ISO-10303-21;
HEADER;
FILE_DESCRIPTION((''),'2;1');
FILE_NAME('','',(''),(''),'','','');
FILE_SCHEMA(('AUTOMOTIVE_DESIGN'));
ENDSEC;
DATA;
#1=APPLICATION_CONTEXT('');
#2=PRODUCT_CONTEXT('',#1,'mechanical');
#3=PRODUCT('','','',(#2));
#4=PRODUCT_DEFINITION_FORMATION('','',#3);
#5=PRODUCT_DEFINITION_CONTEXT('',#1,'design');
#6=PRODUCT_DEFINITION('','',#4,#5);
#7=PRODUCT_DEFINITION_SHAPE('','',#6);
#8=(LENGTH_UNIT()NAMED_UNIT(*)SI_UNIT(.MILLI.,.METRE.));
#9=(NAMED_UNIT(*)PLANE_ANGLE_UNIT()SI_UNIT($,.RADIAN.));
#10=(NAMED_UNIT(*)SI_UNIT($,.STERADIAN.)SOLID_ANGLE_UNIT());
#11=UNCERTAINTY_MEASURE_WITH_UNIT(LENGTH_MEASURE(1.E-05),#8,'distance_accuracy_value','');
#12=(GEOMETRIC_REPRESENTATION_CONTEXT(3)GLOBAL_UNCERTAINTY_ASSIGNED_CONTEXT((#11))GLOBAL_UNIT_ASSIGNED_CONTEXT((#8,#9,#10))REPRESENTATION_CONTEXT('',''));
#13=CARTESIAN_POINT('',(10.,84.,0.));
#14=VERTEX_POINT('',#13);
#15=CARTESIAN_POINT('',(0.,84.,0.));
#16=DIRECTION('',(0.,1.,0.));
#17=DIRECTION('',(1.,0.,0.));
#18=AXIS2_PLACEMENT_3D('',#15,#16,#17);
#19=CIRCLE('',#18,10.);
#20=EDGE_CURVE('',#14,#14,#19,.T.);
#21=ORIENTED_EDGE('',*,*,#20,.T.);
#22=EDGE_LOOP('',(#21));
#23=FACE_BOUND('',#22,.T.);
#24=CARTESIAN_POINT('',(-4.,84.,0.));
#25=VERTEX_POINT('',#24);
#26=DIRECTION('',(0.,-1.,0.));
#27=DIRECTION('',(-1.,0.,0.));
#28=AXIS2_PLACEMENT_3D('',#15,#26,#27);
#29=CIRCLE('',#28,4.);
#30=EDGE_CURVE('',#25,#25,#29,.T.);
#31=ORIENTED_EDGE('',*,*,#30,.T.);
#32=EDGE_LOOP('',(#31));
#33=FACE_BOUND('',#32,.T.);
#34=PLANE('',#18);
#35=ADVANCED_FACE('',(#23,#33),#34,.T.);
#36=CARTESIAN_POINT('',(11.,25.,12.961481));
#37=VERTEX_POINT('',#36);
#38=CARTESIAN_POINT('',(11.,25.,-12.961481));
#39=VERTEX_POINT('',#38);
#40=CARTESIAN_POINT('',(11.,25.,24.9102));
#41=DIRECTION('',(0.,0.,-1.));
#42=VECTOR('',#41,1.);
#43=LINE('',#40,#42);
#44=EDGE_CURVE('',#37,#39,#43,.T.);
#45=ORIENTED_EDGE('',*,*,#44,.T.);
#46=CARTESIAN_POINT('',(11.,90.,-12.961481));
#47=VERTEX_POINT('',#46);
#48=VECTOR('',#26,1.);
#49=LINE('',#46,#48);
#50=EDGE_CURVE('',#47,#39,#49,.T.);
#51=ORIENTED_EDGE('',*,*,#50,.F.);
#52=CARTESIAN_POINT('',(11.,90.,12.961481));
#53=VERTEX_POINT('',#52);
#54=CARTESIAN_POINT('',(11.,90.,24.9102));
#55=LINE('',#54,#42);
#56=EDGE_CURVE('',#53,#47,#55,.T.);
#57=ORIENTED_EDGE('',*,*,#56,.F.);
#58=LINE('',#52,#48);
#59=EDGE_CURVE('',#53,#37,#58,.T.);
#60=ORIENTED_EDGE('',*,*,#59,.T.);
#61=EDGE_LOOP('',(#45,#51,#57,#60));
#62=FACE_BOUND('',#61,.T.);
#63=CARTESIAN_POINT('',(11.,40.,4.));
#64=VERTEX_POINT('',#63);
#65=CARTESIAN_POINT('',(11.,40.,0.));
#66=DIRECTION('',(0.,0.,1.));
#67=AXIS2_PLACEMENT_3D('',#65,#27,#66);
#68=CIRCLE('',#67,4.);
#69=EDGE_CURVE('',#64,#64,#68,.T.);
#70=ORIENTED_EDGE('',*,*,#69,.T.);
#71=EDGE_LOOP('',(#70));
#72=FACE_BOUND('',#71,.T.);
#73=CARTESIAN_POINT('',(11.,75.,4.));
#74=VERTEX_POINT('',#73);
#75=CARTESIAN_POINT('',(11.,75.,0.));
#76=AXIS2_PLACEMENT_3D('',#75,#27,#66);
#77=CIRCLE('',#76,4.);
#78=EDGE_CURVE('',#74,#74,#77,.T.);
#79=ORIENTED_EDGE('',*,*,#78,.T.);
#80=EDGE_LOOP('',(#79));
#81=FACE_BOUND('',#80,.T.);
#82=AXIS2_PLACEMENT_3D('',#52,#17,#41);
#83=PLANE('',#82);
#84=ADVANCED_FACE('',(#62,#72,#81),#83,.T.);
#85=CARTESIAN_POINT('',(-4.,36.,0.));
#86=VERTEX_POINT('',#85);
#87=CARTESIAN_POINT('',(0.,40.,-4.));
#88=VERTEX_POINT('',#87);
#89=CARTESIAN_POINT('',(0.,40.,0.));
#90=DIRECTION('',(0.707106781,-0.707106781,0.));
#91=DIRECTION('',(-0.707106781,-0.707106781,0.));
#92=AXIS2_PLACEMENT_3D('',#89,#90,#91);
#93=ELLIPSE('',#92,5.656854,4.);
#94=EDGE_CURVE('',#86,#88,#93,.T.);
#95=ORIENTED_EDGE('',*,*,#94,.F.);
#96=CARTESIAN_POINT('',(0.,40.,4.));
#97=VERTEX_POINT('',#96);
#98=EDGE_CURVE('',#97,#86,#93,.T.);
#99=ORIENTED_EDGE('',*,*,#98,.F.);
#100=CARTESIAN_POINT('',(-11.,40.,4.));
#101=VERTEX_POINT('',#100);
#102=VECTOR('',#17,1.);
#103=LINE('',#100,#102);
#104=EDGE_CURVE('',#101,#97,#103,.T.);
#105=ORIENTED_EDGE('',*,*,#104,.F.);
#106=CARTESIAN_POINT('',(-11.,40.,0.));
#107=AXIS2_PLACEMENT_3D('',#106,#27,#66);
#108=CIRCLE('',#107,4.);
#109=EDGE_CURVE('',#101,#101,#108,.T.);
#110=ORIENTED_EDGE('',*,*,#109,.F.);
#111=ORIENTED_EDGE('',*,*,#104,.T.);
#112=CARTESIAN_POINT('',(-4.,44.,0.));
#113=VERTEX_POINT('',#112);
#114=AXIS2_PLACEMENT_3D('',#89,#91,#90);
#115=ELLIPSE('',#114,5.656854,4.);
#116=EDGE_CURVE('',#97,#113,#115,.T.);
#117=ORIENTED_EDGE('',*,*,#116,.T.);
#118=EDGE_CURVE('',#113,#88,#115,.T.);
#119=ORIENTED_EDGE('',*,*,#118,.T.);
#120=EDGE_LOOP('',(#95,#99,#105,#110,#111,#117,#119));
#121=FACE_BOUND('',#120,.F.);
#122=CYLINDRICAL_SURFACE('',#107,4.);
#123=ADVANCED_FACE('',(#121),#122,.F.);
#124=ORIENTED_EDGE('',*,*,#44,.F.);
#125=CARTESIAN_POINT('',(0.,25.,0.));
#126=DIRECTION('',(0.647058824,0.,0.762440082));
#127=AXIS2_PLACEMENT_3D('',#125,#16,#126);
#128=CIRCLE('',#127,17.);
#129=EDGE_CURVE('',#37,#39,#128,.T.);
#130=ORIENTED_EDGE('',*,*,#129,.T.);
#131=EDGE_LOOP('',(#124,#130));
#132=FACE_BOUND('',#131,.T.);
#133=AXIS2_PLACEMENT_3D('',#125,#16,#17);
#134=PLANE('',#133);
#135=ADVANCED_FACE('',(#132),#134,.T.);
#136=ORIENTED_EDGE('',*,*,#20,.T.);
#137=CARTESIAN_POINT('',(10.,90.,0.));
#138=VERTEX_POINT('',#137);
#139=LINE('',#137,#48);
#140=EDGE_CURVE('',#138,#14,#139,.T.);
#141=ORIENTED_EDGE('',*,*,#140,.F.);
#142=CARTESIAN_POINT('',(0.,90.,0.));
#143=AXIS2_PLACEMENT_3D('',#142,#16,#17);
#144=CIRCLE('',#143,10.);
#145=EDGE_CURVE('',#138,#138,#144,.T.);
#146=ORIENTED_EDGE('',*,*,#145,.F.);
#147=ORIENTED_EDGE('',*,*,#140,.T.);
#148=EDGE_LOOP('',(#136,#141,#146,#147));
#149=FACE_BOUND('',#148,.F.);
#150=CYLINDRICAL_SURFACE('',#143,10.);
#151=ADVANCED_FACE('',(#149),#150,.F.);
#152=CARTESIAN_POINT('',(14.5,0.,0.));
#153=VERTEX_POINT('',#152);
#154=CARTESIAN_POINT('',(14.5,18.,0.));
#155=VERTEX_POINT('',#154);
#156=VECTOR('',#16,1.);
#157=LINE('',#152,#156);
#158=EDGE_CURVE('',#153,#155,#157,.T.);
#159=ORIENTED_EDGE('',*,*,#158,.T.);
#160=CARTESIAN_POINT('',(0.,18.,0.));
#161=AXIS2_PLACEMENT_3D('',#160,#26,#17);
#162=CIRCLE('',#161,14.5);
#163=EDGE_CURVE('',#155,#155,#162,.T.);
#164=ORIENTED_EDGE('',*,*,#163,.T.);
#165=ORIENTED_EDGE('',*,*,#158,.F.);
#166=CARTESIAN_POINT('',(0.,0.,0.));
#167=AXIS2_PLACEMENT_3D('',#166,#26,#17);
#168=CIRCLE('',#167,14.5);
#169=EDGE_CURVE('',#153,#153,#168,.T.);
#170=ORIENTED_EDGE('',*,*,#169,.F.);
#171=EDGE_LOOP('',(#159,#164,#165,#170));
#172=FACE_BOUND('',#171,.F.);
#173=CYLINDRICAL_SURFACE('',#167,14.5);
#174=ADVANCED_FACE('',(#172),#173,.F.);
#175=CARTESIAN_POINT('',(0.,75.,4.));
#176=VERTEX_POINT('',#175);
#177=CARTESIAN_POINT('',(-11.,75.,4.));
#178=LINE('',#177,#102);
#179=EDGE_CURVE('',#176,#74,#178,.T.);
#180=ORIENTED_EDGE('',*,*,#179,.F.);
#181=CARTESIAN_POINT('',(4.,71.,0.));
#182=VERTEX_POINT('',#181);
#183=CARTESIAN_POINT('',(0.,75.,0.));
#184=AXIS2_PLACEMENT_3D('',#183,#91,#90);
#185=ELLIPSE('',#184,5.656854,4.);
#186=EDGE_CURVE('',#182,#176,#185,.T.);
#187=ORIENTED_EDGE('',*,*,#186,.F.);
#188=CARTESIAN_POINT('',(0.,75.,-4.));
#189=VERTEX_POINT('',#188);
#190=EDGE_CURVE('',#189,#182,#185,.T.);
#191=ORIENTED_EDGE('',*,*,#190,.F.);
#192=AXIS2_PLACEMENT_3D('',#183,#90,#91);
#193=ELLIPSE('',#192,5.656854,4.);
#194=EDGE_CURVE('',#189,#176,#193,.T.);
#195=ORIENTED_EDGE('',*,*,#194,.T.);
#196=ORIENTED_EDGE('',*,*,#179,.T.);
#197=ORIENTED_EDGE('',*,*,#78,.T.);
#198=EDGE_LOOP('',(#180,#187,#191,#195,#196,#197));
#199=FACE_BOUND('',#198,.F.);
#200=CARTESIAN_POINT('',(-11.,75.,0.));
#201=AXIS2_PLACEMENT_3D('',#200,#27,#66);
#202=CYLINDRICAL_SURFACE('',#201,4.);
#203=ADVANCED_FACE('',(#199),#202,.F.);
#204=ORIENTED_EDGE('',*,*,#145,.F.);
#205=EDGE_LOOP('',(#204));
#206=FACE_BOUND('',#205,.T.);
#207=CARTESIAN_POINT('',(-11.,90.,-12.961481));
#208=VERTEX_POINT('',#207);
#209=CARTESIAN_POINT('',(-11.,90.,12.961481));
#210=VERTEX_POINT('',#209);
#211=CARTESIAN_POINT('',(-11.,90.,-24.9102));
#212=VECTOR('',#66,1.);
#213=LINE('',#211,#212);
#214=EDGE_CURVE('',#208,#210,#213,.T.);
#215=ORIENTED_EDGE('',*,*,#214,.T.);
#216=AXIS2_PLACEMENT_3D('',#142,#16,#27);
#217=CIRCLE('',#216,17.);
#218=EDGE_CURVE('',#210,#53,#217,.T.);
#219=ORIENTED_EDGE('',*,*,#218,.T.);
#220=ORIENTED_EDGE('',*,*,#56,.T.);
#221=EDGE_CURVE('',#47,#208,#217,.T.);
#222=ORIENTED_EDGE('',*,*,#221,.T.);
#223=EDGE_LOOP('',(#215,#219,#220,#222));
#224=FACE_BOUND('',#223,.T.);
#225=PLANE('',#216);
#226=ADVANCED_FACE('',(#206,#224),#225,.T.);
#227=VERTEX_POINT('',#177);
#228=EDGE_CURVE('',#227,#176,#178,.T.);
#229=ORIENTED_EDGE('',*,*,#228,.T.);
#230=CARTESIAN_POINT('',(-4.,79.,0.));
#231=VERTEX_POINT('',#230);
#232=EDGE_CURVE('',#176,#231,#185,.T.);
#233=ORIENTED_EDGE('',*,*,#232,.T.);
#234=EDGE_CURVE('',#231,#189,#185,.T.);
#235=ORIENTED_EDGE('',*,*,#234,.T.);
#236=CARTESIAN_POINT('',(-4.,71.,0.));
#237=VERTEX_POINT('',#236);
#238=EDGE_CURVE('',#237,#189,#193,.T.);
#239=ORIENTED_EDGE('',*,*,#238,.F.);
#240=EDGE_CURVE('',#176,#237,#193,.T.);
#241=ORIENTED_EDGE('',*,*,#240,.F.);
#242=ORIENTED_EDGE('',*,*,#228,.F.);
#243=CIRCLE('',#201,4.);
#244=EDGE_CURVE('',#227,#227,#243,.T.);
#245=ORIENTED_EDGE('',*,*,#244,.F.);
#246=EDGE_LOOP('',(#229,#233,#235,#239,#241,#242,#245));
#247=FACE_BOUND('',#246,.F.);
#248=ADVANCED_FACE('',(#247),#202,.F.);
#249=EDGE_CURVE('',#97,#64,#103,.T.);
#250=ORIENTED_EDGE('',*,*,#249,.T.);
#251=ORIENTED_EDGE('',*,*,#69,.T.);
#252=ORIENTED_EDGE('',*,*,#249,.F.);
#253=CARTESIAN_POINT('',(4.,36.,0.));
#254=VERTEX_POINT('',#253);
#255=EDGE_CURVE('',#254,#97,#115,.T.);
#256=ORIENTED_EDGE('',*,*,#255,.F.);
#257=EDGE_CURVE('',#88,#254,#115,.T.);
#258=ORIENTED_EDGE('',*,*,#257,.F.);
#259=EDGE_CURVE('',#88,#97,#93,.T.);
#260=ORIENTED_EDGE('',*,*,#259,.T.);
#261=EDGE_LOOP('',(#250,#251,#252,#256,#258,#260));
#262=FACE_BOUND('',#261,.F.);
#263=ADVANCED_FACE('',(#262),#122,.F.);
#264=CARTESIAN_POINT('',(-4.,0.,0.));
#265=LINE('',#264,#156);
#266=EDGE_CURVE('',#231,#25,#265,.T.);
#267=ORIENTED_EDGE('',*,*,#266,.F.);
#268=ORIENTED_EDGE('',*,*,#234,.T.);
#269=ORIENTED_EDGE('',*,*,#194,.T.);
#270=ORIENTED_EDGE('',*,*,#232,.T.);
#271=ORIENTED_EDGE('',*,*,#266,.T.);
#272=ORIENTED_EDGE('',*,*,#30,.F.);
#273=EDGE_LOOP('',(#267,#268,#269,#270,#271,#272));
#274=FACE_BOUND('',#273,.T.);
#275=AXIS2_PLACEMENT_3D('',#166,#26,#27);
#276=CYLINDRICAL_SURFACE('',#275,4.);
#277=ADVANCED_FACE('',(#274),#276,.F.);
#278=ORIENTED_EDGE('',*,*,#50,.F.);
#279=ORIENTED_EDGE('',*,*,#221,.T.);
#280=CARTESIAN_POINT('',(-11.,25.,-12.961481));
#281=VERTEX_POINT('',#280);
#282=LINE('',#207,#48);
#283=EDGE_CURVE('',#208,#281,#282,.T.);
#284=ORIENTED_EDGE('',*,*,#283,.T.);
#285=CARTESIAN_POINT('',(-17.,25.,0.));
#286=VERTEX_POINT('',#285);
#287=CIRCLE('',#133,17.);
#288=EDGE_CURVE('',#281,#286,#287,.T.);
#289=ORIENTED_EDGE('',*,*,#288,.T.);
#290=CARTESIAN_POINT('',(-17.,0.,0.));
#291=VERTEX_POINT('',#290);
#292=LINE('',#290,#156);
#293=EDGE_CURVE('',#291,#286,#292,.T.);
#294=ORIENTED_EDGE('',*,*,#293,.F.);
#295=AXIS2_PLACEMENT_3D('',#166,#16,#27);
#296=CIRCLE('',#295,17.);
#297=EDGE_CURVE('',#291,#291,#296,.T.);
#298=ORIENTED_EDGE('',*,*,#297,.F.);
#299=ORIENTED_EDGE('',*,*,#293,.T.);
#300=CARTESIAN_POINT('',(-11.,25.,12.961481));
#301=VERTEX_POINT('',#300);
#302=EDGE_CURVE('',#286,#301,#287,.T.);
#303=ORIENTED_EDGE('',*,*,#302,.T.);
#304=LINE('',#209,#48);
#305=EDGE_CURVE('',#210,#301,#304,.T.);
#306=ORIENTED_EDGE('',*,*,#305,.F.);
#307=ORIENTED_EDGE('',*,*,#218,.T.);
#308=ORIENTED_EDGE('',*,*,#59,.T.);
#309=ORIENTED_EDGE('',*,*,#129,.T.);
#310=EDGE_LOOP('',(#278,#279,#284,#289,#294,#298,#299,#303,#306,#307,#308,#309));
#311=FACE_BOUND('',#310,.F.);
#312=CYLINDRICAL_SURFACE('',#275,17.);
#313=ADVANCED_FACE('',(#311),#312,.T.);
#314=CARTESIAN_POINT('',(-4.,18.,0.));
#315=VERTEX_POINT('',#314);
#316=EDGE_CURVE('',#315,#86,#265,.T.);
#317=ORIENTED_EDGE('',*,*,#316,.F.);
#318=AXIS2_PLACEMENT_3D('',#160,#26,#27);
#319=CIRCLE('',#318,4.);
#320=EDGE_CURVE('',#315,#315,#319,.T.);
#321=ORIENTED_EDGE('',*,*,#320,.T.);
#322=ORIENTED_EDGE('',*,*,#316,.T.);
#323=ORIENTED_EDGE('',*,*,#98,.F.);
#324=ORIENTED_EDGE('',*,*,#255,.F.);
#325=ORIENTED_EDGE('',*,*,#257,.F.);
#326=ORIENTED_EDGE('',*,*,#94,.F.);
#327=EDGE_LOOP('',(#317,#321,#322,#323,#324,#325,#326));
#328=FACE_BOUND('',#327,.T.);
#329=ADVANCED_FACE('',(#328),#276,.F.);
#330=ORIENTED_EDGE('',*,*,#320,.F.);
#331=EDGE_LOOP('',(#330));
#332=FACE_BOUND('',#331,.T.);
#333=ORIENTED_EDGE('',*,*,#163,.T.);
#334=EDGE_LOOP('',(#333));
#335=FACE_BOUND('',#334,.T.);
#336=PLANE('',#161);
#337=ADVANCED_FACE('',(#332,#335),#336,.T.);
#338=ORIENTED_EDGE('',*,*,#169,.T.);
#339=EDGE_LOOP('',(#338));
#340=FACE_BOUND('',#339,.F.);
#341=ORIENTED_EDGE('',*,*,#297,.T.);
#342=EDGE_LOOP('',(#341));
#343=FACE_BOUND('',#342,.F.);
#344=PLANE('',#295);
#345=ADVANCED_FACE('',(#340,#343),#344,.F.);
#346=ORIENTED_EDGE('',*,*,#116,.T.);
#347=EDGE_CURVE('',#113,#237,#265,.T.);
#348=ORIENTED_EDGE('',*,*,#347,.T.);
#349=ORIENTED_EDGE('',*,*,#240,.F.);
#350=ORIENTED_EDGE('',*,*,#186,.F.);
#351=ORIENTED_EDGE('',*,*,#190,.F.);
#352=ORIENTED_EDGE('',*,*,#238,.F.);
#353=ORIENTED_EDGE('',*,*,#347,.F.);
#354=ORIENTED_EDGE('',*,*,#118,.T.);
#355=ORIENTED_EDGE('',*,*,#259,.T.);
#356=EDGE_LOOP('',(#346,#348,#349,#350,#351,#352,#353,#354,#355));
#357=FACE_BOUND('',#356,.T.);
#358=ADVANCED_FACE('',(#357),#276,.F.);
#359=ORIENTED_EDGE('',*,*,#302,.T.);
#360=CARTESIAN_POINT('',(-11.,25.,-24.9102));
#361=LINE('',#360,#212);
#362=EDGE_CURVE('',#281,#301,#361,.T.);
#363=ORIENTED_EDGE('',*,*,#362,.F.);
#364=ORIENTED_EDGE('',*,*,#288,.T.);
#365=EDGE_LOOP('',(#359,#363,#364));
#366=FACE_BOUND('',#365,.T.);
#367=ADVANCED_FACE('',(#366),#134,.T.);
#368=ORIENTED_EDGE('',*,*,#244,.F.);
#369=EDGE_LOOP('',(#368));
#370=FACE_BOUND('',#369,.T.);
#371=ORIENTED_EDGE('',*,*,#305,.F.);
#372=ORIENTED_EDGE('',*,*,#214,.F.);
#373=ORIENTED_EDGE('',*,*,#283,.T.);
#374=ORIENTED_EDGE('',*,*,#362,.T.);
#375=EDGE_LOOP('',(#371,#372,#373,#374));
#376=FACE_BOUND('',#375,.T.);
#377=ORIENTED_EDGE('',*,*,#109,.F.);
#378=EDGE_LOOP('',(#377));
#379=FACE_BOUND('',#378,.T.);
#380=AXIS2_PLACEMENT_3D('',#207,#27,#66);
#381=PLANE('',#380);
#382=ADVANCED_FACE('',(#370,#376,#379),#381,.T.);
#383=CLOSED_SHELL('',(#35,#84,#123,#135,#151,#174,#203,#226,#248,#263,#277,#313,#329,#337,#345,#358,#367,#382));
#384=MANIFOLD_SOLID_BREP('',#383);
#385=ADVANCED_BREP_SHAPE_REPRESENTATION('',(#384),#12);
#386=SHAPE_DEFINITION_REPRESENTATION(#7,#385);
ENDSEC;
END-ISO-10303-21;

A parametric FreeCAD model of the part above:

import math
import FreeCAD as App
import Part
import Sketcher

V = App.Vector
Q = App.Units.Quantity

doc = App.newDocument("Part")
body = doc.addObject("PartDesign::Body", "Body")

# Sketch on XZ plane
sketch1 = doc.addObject("Sketcher::SketchObject", "Sketch")
body.addObject(sketch1)
sketch1.AttachmentSupport = (doc.XZ_Plane, [""])
sketch1.MapMode = "FlatFace"
sketch1.addGeometry([
    Part.Circle(V(0, 0, 0), V(0, 0, 1), 17),
    Part.Circle(V(0, 0, 0), V(0, 0, 1), 4),
], False)
sketch1.addConstraint([
    Sketcher.Constraint("Coincident", 0, 3, -1, 1),
    Sketcher.Constraint("Coincident", 1, 3, -1, 1),
    Sketcher.Constraint("Diameter", 0, Q("34 mm")),
    Sketcher.Constraint("Diameter", 1, Q("8 mm")),
])
pad1 = doc.addObject("PartDesign::Pad", "Pad")
body.addObject(pad1)
pad1.Profile = sketch1
pad1.Length = 90
pad1.Reversed = True

# Sketch on XZ plane
sketch2 = doc.addObject("Sketcher::SketchObject", "Sketch001")
body.addObject(sketch2)
sketch2.AttachmentSupport = (doc.XZ_Plane, [""])
sketch2.MapMode = "FlatFace"
sketch2.AttachmentOffset = App.Placement(V(0, 0, -90), App.Rotation())
sketch2.addGeometry([
    Part.ArcOfCircle(Part.Circle(V(0, 0, 0), V(0, 0, 1), 17), math.radians(-50), math.radians(50)),
    Part.LineSegment(V(11, -13, 0), V(11, 13, 0)),
    Part.LineSegment(V(-11, 13, 0), V(-11, -13, 0)),
    Part.ArcOfCircle(Part.Circle(V(0, 0, 0), V(0, 0, 1), 17), math.radians(130), math.radians(230)),
], False)
sketch2.addConstraint([
    Sketcher.Constraint("Coincident", 0, 1, 1, 1),
    Sketcher.Constraint("Coincident", 1, 2, 0, 2),
    Sketcher.Constraint("Coincident", 2, 1, 3, 1),
    Sketcher.Constraint("Coincident", 3, 2, 2, 2),
    Sketcher.Constraint("Vertical", 1),
    Sketcher.Constraint("Vertical", 2),
    Sketcher.Constraint("Coincident", 0, 3, -1, 1),
    Sketcher.Constraint("Coincident", 3, 3, -1, 1),
    Sketcher.Constraint("Equal", 0, 3),
    Sketcher.Constraint("Horizontal", 1, 2, 2, 1),
    Sketcher.Constraint("Radius", 0, Q("17 mm")),
    Sketcher.Constraint("DistanceX", 2, 1, 1, 2, Q("22 mm")),
])
pocket1 = doc.addObject("PartDesign::Pocket", "Pocket")
body.addObject(pocket1)
pocket1.Profile = sketch2
pocket1.Length = 65
pocket1.Reversed = True

# Sketch on YZ plane
sketch3 = doc.addObject("Sketcher::SketchObject", "Sketch002")
body.addObject(sketch3)
sketch3.AttachmentSupport = (doc.YZ_Plane, [""])
sketch3.MapMode = "FlatFace"
sketch3.AttachmentOffset = App.Placement(V(0, 0, -11), App.Rotation())
sketch3.addGeometry([
    Part.Circle(V(40, 0, 0), V(0, 0, 1), 4),
    Part.Circle(V(75, 0, 0), V(0, 0, 1), 4),
], False)
sketch3.addConstraint([
    Sketcher.Constraint("Equal", 0, 1),
    Sketcher.Constraint("PointOnObject", 0, 3, -1),
    Sketcher.Constraint("PointOnObject", 1, 3, -1),
    Sketcher.Constraint("Diameter", 0, Q("8 mm")),
    Sketcher.Constraint("DistanceX", -1, 1, 0, 3, Q("40 mm")),
    Sketcher.Constraint("DistanceX", -1, 1, 1, 3, Q("75 mm")),
])
pocket2 = doc.addObject("PartDesign::Pocket", "Pocket001")
body.addObject(pocket2)
pocket2.Profile = sketch3
pocket2.Type = "ThroughAll"
pocket2.Reversed = True

# Sketch on XZ plane
sketch4 = doc.addObject("Sketcher::SketchObject", "Sketch003")
body.addObject(sketch4)
sketch4.AttachmentSupport = (doc.XZ_Plane, [""])
sketch4.MapMode = "FlatFace"
sketch4.addGeometry(Part.Circle(V(0, 0, 0), V(0, 0, 1), 14), False)
sketch4.addConstraint([
    Sketcher.Constraint("Coincident", 0, 3, -1, 1),
    Sketcher.Constraint("Diameter", 0, Q("29 mm")),
])
pocket3 = doc.addObject("PartDesign::Pocket", "Pocket002")
body.addObject(pocket3)
pocket3.Profile = sketch4
pocket3.Length = 18

# Sketch on XZ plane
sketch5 = doc.addObject("Sketcher::SketchObject", "Sketch004")
body.addObject(sketch5)
sketch5.AttachmentSupport = (doc.XZ_Plane, [""])
sketch5.MapMode = "FlatFace"
sketch5.AttachmentOffset = App.Placement(V(0, 0, -90), App.Rotation())
sketch5.addGeometry(Part.Circle(V(0, 0, 0), V(0, 0, 1), 10), False)
sketch5.addConstraint([
    Sketcher.Constraint("Coincident", 0, 3, -1, 1),
    Sketcher.Constraint("Diameter", 0, Q("20 mm")),
])
pocket4 = doc.addObject("PartDesign::Pocket", "Pocket003")
body.addObject(pocket4)
pocket4.Profile = sketch5
pocket4.Length = 6
pocket4.Reversed = True

doc.recompute()
